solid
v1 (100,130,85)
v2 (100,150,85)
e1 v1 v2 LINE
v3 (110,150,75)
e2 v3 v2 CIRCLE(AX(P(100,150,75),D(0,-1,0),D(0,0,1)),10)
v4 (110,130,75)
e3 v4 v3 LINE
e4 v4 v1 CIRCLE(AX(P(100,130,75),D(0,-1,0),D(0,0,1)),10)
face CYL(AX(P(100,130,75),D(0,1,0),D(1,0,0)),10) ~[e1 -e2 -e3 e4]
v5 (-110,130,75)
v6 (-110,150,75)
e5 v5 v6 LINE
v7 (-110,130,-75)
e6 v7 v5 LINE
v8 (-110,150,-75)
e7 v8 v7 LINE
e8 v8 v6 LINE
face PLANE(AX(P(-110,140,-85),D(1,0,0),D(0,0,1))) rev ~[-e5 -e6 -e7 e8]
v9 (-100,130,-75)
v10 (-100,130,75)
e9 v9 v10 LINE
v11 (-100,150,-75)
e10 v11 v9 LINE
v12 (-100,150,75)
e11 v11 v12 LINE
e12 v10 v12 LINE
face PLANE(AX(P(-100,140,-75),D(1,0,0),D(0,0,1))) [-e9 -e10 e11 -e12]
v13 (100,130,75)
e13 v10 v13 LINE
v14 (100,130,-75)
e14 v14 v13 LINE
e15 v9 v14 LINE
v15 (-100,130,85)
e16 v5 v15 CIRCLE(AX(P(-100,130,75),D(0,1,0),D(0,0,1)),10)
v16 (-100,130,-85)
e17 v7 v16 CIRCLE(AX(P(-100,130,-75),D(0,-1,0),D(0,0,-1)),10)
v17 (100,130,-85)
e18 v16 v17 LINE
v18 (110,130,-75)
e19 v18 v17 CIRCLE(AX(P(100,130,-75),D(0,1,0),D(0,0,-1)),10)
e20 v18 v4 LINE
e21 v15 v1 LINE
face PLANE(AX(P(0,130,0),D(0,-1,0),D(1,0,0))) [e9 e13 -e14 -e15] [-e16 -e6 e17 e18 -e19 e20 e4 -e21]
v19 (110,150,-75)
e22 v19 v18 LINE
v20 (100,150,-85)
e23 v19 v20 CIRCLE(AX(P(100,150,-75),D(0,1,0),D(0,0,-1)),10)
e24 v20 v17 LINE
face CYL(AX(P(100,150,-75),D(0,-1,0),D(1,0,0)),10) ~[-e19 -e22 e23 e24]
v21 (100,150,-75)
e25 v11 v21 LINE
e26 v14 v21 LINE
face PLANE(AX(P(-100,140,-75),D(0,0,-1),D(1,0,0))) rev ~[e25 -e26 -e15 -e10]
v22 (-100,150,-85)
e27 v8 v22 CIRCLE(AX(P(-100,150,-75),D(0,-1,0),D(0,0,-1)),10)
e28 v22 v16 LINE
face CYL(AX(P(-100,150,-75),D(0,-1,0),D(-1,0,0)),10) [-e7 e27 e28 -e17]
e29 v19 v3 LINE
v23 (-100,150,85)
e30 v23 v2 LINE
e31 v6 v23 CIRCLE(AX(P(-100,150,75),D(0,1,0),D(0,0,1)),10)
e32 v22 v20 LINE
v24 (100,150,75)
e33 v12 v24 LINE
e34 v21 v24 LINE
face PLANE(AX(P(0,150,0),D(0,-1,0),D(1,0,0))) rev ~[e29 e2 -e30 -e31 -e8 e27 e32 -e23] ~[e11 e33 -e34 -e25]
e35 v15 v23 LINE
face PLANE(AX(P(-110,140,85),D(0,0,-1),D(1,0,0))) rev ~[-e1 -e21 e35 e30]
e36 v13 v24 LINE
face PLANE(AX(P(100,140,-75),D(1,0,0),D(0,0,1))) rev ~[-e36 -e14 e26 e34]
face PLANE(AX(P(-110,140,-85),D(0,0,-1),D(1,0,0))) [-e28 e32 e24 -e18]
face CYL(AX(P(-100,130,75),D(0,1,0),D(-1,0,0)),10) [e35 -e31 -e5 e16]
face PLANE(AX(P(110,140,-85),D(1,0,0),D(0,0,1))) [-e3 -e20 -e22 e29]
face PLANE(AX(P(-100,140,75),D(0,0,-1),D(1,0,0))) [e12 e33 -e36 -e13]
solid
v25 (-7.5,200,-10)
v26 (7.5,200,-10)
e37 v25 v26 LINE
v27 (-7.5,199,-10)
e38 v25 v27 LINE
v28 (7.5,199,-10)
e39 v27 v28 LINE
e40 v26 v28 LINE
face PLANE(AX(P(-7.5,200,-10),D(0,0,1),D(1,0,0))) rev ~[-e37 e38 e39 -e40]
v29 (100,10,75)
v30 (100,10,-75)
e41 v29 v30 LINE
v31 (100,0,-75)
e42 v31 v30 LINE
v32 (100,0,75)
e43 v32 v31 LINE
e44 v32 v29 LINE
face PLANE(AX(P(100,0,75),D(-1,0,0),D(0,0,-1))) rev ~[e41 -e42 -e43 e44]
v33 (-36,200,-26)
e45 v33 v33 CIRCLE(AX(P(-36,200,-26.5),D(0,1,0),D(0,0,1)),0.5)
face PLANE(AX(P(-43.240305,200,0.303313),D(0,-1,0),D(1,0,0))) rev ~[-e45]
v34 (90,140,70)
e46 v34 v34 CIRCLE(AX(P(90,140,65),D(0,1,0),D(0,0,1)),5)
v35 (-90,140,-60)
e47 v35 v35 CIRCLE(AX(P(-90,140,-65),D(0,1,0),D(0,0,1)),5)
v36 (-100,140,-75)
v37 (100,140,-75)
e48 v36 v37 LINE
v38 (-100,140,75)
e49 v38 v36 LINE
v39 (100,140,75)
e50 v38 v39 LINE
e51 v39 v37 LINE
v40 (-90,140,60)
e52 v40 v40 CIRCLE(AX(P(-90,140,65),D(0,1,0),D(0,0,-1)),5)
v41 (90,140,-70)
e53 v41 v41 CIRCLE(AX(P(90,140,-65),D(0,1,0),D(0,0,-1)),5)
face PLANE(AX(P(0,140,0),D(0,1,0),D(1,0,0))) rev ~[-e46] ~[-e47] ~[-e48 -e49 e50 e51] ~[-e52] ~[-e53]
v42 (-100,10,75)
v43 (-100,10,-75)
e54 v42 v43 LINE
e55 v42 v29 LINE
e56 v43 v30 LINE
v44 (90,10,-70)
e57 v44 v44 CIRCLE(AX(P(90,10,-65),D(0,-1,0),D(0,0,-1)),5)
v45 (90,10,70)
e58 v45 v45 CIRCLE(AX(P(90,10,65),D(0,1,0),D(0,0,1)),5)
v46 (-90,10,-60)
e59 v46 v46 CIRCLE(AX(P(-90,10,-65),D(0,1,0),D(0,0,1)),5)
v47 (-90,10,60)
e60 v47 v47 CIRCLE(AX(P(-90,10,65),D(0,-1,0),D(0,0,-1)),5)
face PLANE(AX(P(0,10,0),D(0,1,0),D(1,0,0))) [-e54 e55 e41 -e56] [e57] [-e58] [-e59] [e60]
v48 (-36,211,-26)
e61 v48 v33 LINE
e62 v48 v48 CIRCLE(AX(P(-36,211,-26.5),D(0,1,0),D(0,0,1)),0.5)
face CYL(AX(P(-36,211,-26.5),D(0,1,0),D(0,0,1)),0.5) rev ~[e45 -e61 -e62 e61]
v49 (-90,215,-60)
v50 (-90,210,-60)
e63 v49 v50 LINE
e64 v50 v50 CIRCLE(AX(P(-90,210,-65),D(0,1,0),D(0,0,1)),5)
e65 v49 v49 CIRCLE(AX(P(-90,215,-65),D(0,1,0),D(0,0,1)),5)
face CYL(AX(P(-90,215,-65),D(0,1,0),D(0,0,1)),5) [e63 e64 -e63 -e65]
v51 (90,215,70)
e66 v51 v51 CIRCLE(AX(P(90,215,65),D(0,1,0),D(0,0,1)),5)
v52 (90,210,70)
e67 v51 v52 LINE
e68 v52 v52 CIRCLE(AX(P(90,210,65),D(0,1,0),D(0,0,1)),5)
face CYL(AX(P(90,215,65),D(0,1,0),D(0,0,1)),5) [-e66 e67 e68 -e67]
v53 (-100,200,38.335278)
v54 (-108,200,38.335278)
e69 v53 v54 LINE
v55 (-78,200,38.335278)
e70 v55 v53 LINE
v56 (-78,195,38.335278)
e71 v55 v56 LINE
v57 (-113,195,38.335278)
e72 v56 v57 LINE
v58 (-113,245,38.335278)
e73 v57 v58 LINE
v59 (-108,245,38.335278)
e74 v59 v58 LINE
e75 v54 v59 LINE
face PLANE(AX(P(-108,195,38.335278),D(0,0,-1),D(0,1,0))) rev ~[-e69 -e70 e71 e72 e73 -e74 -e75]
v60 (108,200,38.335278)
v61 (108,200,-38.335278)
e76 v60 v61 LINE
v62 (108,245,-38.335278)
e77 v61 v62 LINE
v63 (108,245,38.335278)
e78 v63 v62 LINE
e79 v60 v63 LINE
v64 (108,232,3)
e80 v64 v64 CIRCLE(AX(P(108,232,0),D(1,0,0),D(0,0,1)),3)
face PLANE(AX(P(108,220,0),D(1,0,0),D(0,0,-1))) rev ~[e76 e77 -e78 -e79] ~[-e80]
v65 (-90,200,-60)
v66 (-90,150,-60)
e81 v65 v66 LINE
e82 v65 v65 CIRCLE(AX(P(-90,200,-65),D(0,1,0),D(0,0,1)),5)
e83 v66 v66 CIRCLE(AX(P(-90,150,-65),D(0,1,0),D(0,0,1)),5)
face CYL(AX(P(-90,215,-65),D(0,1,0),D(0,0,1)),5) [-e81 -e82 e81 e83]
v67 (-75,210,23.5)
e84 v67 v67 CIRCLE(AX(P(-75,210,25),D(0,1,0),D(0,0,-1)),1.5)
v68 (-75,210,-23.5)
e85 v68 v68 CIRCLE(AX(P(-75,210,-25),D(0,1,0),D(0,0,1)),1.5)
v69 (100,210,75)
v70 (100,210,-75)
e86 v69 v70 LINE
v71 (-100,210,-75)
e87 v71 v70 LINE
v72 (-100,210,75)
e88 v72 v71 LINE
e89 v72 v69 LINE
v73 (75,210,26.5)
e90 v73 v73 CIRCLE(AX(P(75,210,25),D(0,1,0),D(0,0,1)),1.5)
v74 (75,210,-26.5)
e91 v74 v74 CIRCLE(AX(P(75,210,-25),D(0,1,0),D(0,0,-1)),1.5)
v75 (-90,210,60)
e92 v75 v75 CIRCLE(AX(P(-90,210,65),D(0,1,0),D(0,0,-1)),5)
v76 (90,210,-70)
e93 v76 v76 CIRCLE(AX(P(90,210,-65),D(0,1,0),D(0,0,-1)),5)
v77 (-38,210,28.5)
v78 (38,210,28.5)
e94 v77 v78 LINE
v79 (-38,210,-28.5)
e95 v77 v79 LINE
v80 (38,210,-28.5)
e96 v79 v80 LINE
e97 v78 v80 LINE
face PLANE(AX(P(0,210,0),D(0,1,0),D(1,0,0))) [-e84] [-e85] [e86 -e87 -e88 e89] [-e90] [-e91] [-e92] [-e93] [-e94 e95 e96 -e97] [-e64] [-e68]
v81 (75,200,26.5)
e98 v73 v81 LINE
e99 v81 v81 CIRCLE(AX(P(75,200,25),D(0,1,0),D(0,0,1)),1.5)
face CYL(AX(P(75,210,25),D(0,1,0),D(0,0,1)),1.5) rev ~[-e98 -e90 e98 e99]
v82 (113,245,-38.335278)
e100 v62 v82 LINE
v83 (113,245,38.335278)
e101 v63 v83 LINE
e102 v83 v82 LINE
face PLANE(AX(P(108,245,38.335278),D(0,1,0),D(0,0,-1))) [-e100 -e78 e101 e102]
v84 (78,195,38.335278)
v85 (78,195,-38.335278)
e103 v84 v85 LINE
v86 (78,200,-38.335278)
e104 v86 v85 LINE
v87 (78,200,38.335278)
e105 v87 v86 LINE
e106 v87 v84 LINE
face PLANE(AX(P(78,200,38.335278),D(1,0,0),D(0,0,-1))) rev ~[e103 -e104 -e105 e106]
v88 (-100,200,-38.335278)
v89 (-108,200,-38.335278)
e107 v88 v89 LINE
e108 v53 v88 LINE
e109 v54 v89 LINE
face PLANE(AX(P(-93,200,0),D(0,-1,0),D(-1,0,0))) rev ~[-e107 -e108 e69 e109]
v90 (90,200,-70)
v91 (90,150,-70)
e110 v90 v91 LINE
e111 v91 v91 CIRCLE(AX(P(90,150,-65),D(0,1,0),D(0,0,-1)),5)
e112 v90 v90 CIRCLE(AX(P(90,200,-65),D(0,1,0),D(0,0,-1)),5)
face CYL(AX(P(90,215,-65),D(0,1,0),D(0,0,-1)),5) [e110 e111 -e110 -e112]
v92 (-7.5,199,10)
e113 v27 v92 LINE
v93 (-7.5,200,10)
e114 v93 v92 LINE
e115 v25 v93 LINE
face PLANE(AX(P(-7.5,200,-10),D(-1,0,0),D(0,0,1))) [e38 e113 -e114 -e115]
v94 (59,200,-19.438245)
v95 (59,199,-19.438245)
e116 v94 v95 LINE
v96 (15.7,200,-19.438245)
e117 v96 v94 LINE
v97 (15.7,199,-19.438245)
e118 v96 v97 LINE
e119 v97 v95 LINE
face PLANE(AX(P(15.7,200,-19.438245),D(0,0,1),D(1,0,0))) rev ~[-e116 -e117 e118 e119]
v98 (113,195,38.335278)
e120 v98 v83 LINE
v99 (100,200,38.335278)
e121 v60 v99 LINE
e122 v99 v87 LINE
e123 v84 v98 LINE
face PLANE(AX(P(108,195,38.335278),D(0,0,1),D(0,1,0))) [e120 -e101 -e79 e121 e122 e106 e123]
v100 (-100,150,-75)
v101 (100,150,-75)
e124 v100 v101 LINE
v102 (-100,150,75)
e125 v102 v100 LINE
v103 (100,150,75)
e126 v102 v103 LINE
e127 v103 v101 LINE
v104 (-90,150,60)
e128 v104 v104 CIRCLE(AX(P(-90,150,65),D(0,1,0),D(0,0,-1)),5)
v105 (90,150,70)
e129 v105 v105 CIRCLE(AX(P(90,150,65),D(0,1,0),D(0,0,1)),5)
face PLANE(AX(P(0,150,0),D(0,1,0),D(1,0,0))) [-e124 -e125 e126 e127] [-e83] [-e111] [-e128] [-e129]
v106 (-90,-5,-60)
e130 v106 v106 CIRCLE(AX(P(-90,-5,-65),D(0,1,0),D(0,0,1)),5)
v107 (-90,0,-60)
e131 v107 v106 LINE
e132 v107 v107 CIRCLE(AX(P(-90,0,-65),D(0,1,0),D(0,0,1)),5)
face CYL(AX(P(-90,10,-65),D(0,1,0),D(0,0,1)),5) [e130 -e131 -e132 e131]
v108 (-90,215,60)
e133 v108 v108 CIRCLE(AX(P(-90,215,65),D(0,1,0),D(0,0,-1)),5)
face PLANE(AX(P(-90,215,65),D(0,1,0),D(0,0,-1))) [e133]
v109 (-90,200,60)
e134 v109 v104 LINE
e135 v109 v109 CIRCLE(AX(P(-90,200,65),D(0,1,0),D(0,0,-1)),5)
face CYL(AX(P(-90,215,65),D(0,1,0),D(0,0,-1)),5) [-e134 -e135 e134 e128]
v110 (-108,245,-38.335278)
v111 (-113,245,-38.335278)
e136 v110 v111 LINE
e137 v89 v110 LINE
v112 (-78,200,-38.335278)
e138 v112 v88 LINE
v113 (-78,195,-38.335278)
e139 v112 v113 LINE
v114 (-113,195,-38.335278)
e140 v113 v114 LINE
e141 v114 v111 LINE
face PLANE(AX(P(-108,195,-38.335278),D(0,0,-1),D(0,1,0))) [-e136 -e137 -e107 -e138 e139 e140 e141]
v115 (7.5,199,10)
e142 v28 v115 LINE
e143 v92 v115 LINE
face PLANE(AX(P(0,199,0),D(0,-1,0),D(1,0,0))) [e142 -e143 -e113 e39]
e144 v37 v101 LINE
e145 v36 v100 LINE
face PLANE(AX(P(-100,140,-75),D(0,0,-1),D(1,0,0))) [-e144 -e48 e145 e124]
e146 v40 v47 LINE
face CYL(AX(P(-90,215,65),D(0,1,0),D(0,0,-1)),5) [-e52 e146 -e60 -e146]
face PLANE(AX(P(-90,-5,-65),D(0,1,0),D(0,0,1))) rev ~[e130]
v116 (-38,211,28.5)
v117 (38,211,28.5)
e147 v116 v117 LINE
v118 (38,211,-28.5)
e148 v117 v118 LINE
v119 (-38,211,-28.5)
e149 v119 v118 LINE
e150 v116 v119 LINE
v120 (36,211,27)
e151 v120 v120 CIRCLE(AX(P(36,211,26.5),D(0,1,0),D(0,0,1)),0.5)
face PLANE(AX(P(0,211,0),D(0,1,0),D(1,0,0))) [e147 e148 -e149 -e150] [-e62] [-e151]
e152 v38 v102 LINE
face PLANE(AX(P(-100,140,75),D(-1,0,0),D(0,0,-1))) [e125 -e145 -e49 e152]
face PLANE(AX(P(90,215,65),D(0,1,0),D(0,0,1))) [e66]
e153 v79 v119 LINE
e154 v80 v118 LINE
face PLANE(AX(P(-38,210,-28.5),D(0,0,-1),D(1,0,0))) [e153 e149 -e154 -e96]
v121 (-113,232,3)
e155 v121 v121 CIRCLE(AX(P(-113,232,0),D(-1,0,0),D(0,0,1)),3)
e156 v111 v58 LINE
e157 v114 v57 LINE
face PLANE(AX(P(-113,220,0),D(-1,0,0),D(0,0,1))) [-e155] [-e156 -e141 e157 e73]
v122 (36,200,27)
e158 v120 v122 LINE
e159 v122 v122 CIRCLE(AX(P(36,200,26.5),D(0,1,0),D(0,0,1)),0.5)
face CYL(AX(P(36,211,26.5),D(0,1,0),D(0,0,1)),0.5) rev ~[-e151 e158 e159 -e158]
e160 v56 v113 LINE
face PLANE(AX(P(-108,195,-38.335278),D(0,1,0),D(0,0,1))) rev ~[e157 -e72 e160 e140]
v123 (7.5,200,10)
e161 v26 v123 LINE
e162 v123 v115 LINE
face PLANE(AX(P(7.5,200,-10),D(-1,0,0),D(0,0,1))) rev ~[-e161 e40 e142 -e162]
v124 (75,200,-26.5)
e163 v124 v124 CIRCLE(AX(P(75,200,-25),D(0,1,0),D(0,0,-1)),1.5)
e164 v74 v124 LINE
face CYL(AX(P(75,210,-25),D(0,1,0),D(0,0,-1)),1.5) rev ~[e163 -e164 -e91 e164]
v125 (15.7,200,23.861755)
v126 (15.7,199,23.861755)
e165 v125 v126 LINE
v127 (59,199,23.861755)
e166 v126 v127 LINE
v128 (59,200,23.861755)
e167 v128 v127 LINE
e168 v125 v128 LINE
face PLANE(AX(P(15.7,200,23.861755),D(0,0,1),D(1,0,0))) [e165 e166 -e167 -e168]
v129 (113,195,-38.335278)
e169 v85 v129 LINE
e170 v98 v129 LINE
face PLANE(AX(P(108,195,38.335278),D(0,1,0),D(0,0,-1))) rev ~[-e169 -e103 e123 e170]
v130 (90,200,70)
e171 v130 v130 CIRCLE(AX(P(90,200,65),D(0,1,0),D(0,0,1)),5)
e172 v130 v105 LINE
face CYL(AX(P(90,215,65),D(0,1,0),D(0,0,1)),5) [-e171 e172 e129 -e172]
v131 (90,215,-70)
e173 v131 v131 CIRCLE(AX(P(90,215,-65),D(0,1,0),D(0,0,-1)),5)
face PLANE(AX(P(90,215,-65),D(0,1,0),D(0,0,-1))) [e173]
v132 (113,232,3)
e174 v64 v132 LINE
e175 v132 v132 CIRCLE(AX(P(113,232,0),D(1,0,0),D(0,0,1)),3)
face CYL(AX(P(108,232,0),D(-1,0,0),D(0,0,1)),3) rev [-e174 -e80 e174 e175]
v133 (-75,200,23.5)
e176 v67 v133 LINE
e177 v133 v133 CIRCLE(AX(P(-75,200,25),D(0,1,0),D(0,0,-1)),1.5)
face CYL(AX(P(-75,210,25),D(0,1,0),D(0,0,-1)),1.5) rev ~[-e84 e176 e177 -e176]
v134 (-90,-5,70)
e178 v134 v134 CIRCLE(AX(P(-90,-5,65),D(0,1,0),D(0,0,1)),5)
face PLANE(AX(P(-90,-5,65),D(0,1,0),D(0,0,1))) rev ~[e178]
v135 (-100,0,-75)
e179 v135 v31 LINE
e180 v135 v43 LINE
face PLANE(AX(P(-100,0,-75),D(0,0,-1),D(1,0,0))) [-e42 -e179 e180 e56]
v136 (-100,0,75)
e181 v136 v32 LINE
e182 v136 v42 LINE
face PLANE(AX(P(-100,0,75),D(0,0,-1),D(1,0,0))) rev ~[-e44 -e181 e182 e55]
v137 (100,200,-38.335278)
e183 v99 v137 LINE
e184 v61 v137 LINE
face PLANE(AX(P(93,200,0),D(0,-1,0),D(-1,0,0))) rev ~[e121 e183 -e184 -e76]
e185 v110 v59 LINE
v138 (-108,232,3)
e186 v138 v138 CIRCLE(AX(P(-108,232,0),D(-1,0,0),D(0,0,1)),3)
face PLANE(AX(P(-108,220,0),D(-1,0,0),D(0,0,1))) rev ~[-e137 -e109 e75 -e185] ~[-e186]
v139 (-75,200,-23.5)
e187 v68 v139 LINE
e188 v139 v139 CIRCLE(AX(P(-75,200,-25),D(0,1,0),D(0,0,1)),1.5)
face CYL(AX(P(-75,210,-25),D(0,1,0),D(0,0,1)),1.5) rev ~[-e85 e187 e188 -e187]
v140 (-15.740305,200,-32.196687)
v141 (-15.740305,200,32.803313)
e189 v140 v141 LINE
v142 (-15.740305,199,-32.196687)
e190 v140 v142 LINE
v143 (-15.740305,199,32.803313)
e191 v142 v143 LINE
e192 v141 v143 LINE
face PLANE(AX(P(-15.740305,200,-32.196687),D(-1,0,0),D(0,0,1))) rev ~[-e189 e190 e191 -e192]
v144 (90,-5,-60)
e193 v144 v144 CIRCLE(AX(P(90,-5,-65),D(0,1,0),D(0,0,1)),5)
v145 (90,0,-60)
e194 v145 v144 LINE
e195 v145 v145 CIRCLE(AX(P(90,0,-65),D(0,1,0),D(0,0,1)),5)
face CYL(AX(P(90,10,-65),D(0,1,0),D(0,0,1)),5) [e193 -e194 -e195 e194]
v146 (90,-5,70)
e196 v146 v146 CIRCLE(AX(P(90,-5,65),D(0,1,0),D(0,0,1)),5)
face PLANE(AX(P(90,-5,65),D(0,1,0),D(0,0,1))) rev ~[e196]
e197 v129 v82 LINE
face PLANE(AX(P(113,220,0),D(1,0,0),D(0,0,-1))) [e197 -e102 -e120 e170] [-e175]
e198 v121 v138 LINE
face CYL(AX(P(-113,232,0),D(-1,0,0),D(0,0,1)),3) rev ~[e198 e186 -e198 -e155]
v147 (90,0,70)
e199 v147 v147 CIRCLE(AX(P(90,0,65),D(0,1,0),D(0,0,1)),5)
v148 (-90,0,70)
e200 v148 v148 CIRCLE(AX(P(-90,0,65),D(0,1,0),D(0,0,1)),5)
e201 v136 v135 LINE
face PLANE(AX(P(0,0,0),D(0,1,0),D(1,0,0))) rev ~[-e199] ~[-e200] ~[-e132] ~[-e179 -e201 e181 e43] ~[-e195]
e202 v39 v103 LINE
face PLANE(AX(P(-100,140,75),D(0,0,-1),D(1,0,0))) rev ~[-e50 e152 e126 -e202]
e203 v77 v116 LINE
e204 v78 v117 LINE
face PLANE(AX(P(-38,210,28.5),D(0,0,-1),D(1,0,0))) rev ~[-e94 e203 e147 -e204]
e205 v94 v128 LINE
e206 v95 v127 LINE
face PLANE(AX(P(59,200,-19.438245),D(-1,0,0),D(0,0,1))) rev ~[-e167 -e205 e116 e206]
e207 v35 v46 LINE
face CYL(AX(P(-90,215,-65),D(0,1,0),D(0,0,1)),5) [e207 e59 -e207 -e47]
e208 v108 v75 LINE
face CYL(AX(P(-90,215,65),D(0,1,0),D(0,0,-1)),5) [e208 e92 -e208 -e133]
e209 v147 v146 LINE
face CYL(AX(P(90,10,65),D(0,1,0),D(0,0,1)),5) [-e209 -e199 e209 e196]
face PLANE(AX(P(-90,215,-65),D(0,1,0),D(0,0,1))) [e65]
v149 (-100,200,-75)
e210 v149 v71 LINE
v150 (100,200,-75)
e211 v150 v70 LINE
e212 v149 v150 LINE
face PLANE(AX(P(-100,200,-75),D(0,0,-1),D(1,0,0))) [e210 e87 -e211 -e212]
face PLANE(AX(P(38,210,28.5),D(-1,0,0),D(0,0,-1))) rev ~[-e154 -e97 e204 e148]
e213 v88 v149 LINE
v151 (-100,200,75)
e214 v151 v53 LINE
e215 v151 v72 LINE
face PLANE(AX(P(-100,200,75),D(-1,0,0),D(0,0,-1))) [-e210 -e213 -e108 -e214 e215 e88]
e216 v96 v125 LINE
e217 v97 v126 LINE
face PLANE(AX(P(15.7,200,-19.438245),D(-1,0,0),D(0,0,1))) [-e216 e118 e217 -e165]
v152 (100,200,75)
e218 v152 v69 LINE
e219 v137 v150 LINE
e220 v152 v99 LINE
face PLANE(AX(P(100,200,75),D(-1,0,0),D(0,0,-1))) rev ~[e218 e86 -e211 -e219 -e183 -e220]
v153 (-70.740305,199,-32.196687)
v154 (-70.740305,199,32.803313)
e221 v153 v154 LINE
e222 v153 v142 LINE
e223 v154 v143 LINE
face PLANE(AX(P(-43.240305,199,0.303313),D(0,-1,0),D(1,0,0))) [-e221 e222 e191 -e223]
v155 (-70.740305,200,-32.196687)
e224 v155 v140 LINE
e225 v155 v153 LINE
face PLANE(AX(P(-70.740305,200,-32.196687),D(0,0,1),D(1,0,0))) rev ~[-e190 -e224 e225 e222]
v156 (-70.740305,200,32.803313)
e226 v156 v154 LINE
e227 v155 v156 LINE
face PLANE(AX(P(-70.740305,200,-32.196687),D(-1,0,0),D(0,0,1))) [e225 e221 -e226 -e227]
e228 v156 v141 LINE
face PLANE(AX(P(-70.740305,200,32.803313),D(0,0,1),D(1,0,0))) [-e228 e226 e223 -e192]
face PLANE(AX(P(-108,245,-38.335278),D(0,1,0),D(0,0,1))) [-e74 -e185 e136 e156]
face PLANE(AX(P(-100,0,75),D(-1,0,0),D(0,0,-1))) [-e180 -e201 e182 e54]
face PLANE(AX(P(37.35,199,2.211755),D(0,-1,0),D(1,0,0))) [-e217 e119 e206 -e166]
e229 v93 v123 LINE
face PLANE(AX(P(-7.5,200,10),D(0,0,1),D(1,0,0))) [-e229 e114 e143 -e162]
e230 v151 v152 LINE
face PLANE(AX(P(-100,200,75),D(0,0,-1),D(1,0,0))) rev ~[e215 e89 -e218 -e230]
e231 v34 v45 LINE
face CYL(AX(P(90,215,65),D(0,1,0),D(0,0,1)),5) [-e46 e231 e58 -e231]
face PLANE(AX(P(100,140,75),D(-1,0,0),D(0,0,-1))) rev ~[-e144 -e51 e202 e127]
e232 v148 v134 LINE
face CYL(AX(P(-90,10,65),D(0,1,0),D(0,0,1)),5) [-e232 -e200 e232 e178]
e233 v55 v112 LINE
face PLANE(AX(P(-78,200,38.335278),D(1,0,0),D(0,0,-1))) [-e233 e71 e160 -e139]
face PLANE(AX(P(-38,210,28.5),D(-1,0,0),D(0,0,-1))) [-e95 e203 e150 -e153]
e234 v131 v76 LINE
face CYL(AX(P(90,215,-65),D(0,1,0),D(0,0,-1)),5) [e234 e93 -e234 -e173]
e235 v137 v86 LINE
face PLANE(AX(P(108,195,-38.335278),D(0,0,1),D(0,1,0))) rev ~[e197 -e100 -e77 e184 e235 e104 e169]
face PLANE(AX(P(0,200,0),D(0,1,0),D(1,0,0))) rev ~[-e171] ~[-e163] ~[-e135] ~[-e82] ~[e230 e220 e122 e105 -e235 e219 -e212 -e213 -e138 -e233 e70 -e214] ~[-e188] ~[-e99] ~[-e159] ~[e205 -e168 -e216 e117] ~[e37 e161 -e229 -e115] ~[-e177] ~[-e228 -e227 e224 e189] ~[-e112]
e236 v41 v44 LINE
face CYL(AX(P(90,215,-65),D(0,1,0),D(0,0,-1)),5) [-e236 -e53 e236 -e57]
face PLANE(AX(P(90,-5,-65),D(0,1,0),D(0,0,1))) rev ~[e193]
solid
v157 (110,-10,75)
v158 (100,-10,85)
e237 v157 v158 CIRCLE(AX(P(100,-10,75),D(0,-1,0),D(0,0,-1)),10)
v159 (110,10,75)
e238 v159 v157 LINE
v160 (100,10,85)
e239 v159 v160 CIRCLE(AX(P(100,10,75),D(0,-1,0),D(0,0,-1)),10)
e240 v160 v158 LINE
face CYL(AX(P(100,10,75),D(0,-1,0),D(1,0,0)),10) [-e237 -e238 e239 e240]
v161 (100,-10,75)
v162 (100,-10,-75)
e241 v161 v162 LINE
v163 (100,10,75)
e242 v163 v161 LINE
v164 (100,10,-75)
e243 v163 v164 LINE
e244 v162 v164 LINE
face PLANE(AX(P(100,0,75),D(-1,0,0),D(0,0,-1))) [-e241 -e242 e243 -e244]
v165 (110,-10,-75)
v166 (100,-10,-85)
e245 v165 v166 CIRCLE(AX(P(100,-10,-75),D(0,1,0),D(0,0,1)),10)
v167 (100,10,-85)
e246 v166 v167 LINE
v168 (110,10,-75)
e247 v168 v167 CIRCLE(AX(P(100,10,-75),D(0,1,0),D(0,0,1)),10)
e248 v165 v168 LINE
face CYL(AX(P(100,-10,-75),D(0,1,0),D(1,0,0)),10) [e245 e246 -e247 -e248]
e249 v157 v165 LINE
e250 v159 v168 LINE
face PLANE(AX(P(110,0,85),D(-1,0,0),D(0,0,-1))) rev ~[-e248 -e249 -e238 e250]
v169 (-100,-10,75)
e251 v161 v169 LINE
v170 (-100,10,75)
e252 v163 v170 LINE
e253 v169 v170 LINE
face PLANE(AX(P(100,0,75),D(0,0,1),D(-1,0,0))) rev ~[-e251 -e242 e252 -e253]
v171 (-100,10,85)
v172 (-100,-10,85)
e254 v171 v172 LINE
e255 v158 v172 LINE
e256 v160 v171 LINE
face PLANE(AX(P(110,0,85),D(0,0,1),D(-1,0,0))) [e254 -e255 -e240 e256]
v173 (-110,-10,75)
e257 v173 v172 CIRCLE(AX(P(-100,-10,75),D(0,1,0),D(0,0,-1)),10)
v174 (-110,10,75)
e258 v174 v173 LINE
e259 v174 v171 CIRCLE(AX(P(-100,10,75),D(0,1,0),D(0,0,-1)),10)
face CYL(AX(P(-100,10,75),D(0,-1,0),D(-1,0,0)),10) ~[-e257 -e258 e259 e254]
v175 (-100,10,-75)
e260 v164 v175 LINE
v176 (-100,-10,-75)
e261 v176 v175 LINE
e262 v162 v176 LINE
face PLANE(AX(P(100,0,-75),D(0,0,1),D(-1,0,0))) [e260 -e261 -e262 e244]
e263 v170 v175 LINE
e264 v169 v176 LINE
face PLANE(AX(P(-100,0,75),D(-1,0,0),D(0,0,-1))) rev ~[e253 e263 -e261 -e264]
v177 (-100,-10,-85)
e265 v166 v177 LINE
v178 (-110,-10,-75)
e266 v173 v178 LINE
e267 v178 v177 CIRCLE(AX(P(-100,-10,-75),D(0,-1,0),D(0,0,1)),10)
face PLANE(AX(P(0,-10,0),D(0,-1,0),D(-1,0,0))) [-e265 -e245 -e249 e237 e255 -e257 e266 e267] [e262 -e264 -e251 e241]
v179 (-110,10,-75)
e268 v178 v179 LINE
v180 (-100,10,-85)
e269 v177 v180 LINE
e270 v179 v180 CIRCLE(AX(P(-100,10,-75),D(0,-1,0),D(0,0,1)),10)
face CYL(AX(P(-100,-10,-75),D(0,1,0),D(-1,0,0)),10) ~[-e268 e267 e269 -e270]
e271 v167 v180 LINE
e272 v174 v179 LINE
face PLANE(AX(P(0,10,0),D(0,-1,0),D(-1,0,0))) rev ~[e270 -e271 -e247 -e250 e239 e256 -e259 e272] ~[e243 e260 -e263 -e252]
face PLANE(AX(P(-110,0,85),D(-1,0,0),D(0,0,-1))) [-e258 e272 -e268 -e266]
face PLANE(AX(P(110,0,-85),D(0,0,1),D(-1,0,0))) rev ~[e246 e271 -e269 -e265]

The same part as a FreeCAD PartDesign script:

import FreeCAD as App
import Part
import Sketcher
Q = App.Units.Quantity


def edges_at(feature, points):
    """Names of the edges that pass closest to the given points."""
    edges = feature.Shape.Edges
    near = lambda p: min(range(len(edges)), key=lambda i: edges[i].distToShape(Part.Vertex(*p))[0])
    return sorted({f"Edge{near(p) + 1}" for p in points})


def add_polygon(sketch, points):
    """Adds a closed chain of lines whose ends are joined by coincident constraints."""
    first, n = sketch.GeometryCount, len(points)
    for a, b in zip(points, points[1:] + points[:1]):
        sketch.addGeometry(Part.LineSegment(App.Vector(*a, 0), App.Vector(*b, 0)), False)
    for i in range(n):
        sketch.addConstraint(Sketcher.Constraint("Coincident", first + i, 2, first + (i + 1) % n, 1))

doc = App.newDocument("Part")
params = doc.addObject("Spreadsheet::Sheet", "Params")
for row, (alias, value) in enumerate([
    ("sketch1_width", "200 mm"),
    ("sketch1_height", "150 mm"),
    ("pad1_length", "10 mm"),
    ("sketch2_diameter", "10 mm"),
    ("pocket1_length", "10 mm"),
    ("sketch3_diameter", "10 mm"),
    ("sketch3_width", "200 mm"),
    ("sketch3_height", "150 mm"),
    ("pad2_length", "10 mm"),
    ("sketch4_diameter", "10 mm"),
    ("sketch4_width", "200 mm"),
    ("sketch4_height", "150 mm"),
    ("pad3_length", "10 mm"),
    ("sketch5_diameter", "10 mm"),
    ("pad4_length", "205 mm"),
    ("sketch6_diameter", "10 mm"),
    ("pad5_length", "15 mm"),
    ("sketch7_diameter", "3 mm"),
    ("pocket2_length", "10 mm"),
    ("sketch8_width", "76 mm"),
    ("sketch8_height", "57 mm"),
    ("pad6_length", "1 mm"),
    ("sketch9_diameter", "1 mm"),
    ("pocket3_length", "30 mm"),
    ("sketch10_width", "15 mm"),
    ("sketch10_width2", "55 mm"),
    ("sketch10_height", "20 mm"),
    ("sketch10_height2", "65 mm"),
    ("sketch10_width3", "43.3 mm"),
    ("pad7_length", "1 mm"),
    ("sketch11_width", "30 mm"),
    ("pad8_length", "5 mm"),
    ("sketch12_width", "50 mm"),
    ("pad9_length", "5 mm"),
    ("sketch13_diameter", "6 mm"),
    ("pocket4_length", "5 mm"),
    ("sketch14_width", "50 mm"),
    ("pad10_length", "5 mm"),
    ("sketch15_diameter", "6 mm"),
    ("pocket5_length", "5 mm"),
    ("sketch16_width", "220 mm"),
    ("sketch16_width2", "200 mm"),
    ("sketch16_height", "170 mm"),
    ("sketch16_height2", "150 mm"),
    ("pad11_length", "20 mm"),
    ("fillet_radius", "10 mm"),
    ("sketch17_width", "220 mm"),
    ("sketch17_width2", "200 mm"),
    ("sketch17_height", "170 mm"),
    ("sketch17_height2", "150 mm"),
    ("pad12_length", "20 mm"),
    ("fillet2_radius", "10 mm"),
], start=1):
    params.set(f"A{row}", alias)
    params.set(f"B{row}", "=" + value)
    params.setAlias(f"B{row}", alias)

body = doc.addObject("PartDesign::Body", "Body")

sketch1 = body.newObject("Sketcher::SketchObject", "Sketch")
sketch1.AttachmentSupport = (doc.getObject("XZ_Plane"), [""])
sketch1.MapMode = "FlatFace"
add_polygon(sketch1, [(-100, -75), (-100, 75), (100, 75), (100, -75)])
sketch1.addConstraint([
    Sketcher.Constraint("Vertical", 0),
    Sketcher.Constraint("Horizontal", 1),
    Sketcher.Constraint("Vertical", 2),
    Sketcher.Constraint("Horizontal", 3),
    Sketcher.Constraint("Symmetric", 0, 2, 2, 2, -1, 1),
    Sketcher.Constraint("DistanceX", 1, 1, 1, 2, Q("200 mm")),
    Sketcher.Constraint("DistanceY", 0, 1, 0, 2, Q("150 mm")),
])
sketch1.setExpression("Constraints[9]", "Params.sketch1_width")
sketch1.setExpression("Constraints[10]", "Params.sketch1_height")
pad1 = body.newObject("PartDesign::Pad", "Pad")
pad1.Profile = sketch1
pad1.setExpression("Length", "Params.pad1_length")
pad1.Reversed = True

sketch2 = body.newObject("Sketcher::SketchObject", "Sketch001")
sketch2.AttachmentSupport = (doc.getObject("XZ_Plane"), [""])
sketch2.MapMode = "FlatFace"
sketch2.AttachmentOffset = App.Placement(App.Vector(0, 0, -10), App.Rotation())
sketch2.addGeometry([
    Part.Circle(App.Vector(-90, -65, 0), App.Vector(0, 0, 1), 5),
    Part.Circle(App.Vector(90, -65, 0), App.Vector(0, 0, 1), 5),
    Part.Circle(App.Vector(90, 65, 0), App.Vector(0, 0, 1), 5),
    Part.Circle(App.Vector(-90, 65, 0), App.Vector(0, 0, 1), 5),
], False)
sketch2.addConstraint([
    Sketcher.Constraint("Equal", 0, 1),
    Sketcher.Constraint("Equal", 1, 2),
    Sketcher.Constraint("Equal", 2, 3),
    Sketcher.Constraint("Symmetric", 0, 3, 2, 3, -1, 1),
    Sketcher.Constraint("Symmetric", 1, 3, 3, 3, -1, 1),
    Sketcher.Constraint("Symmetric", 0, 3, 1, 3, -2),
    Sketcher.Constraint("Diameter", 0, Q("10 mm")),
    Sketcher.Constraint("DistanceX", 0, 3, -1, 1, Q("90 mm")),
    Sketcher.Constraint("DistanceY", 0, 3, -1, 1, Q("65 mm")),
])
sketch2.setExpression("Constraints[6]", "Params.sketch2_diameter")
pocket1 = body.newObject("PartDesign::Pocket", "Pocket")
pocket1.Profile = sketch2
pocket1.setExpression("Length", "Params.pocket1_length")
pocket1.Reversed = True
body2 = doc.addObject("PartDesign::Body", "Body001")

sketch3 = body2.newObject("Sketcher::SketchObject", "Sketch002")
sketch3.AttachmentSupport = (doc.getObject("XZ_Plane001"), [""])
sketch3.MapMode = "FlatFace"
sketch3.AttachmentOffset = App.Placement(App.Vector(0, 0, -140), App.Rotation())
add_polygon(sketch3, [(-100, -75), (-100, 75), (100, 75), (100, -75)])
sketch3.addGeometry(Part.Circle(App.Vector(-90, 65, 0), App.Vector(0, 0, 1), 5), False)
sketch3.addGeometry(Part.Circle(App.Vector(90, 65, 0), App.Vector(0, 0, 1), 5), False)
sketch3.addGeometry(Part.Circle(App.Vector(-90, -65, 0), App.Vector(0, 0, 1), 5), False)
sketch3.addGeometry(Part.Circle(App.Vector(90, -65, 0), App.Vector(0, 0, 1), 5), False)
sketch3.addConstraint([
    Sketcher.Constraint("Vertical", 0),
    Sketcher.Constraint("Horizontal", 1),
    Sketcher.Constraint("Vertical", 2),
    Sketcher.Constraint("Horizontal", 3),
    Sketcher.Constraint("Equal", 4, 5),
    Sketcher.Constraint("Equal", 5, 6),
    Sketcher.Constraint("Equal", 6, 7),
    Sketcher.Constraint("Symmetric", 5, 3, 6, 3, -1, 1),
    Sketcher.Constraint("Symmetric", 4, 3, 7, 3, -1, 1),
    Sketcher.Constraint("Symmetric", 0, 2, 2, 2, -1, 1),
    Sketcher.Constraint("Symmetric", 4, 3, 5, 3, -2),
    Sketcher.Constraint("Diameter", 4, Q("10 mm")),
    Sketcher.Constraint("DistanceX", 1, 1, 1, 2, Q("200 mm")),
    Sketcher.Constraint("DistanceY", 0, 1, 0, 2, Q("150 mm")),
    Sketcher.Constraint("DistanceX", 4, 3, -1, 1, Q("90 mm")),
    Sketcher.Constraint("DistanceY", -1, 1, 4, 3, Q("65 mm")),
])
sketch3.setExpression("Constraints[15]", "Params.sketch3_diameter")
sketch3.setExpression("Constraints[16]", "Params.sketch3_width")
sketch3.setExpression("Constraints[17]", "Params.sketch3_height")
pad2 = body2.newObject("PartDesign::Pad", "Pad001")
pad2.Profile = sketch3
pad2.setExpression("Length", "Params.pad2_length")
pad2.Reversed = True
body3 = doc.addObject("PartDesign::Body", "Body002")

sketch4 = body3.newObject("Sketcher::SketchObject", "Sketch003")
sketch4.AttachmentSupport = (doc.getObject("XZ_Plane002"), [""])
sketch4.MapMode = "FlatFace"
sketch4.AttachmentOffset = App.Placement(App.Vector(0, 0, -200), App.Rotation())
add_polygon(sketch4, [(-100, -75), (-100, 75), (100, 75), (100, -75)])
sketch4.addGeometry(Part.Circle(App.Vector(-90, 65, 0), App.Vector(0, 0, 1), 5), False)
sketch4.addGeometry(Part.Circle(App.Vector(90, 65, 0), App.Vector(0, 0, 1), 5), False)
sketch4.addGeometry(Part.Circle(App.Vector(-90, -65, 0), App.Vector(0, 0, 1), 5), False)
sketch4.addGeometry(Part.Circle(App.Vector(90, -65, 0), App.Vector(0, 0, 1), 5), False)
sketch4.addConstraint([
    Sketcher.Constraint("Vertical", 0),
    Sketcher.Constraint("Horizontal", 1),
    Sketcher.Constraint("Vertical", 2),
    Sketcher.Constraint("Horizontal", 3),
    Sketcher.Constraint("Equal", 4, 5),
    Sketcher.Constraint("Equal", 5, 6),
    Sketcher.Constraint("Equal", 6, 7),
    Sketcher.Constraint("Symmetric", 5, 3, 6, 3, -1, 1),
    Sketcher.Constraint("Symmetric", 4, 3, 7, 3, -1, 1),
    Sketcher.Constraint("Symmetric", 0, 2, 2, 2, -1, 1),
    Sketcher.Constraint("Symmetric", 4, 3, 5, 3, -2),
    Sketcher.Constraint("Diameter", 4, Q("10 mm")),
    Sketcher.Constraint("DistanceX", 1, 1, 1, 2, Q("200 mm")),
    Sketcher.Constraint("DistanceY", 0, 1, 0, 2, Q("150 mm")),
    Sketcher.Constraint("DistanceX", 4, 3, -1, 1, Q("90 mm")),
    Sketcher.Constraint("DistanceY", -1, 1, 4, 3, Q("65 mm")),
])
sketch4.setExpression("Constraints[15]", "Params.sketch4_diameter")
sketch4.setExpression("Constraints[16]", "Params.sketch4_width")
sketch4.setExpression("Constraints[17]", "Params.sketch4_height")
pad3 = body3.newObject("PartDesign::Pad", "Pad002")
pad3.Profile = sketch4
pad3.setExpression("Length", "Params.pad3_length")
pad3.Reversed = True
body2.AllowCompound = True
doc.recompute()

boolean = body2.newObject("PartDesign::Boolean", "Boolean")
boolean.Type = "Fuse"
boolean.addObjects([body3])

sketch5 = body2.newObject("Sketcher::SketchObject", "Sketch004")
sketch5.AttachmentSupport = (doc.getObject("XZ_Plane001"), [""])
sketch5.MapMode = "FlatFace"
sketch5.AttachmentOffset = App.Placement(App.Vector(0, 0, -215), App.Rotation())
sketch5.addGeometry([
    Part.Circle(App.Vector(-90, 65, 0), App.Vector(0, 0, 1), 5),
    Part.Circle(App.Vector(-90, -65, 0), App.Vector(0, 0, 1), 5),
    Part.Circle(App.Vector(90, -65, 0), App.Vector(0, 0, 1), 5),
    Part.Circle(App.Vector(90, 65, 0), App.Vector(0, 0, 1), 5),
], False)
sketch5.addConstraint([
    Sketcher.Constraint("Equal", 0, 1),
    Sketcher.Constraint("Equal", 1, 2),
    Sketcher.Constraint("Equal", 2, 3),
    Sketcher.Constraint("Symmetric", 0, 3, 2, 3, -1, 1),
    Sketcher.Constraint("Symmetric", 1, 3, 3, 3, -1, 1),
    Sketcher.Constraint("Symmetric", 1, 3, 2, 3, -2),
    Sketcher.Constraint("Diameter", 0, Q("10 mm")),
    Sketcher.Constraint("DistanceX", 0, 3, -1, 1, Q("90 mm")),
    Sketcher.Constraint("DistanceY", -1, 1, 0, 3, Q("65 mm")),
])
sketch5.setExpression("Constraints[6]", "Params.sketch5_diameter")
pad4 = body2.newObject("PartDesign::Pad", "Pad003")
pad4.Profile = sketch5
pad4.setExpression("Length", "Params.pad4_length")
body.AllowCompound = True
doc.recompute()

boolean2 = body.newObject("PartDesign::Boolean", "Boolean001")
boolean2.Type = "Fuse"
boolean2.addObjects([body2])

sketch6 = body.newObject("Sketcher::SketchObject", "Sketch005")
sketch6.AttachmentSupport = (doc.getObject("XZ_Plane"), [""])
sketch6.MapMode = "FlatFace"
sketch6.AttachmentOffset = App.Placement(App.Vector(0, 0, -10), App.Rotation())
sketch6.addGeometry([
    Part.Circle(App.Vector(-90, -65, 0), App.Vector(0, 0, 1), 5),
    Part.Circle(App.Vector(-90, 65, 0), App.Vector(0, 0, 1), 5),
    Part.Circle(App.Vector(90, 65, 0), App.Vector(0, 0, 1), 5),
    Part.Circle(App.Vector(90, -65, 0), App.Vector(0, 0, 1), 5),
], False)
sketch6.addConstraint([
    Sketcher.Constraint("Equal", 0, 1),
    Sketcher.Constraint("Equal", 1, 2),
    Sketcher.Constraint("Equal", 2, 3),
    Sketcher.Constraint("Symmetric", 0, 3, 2, 3, -1, 1),
    Sketcher.Constraint("Symmetric", 1, 3, 3, 3, -1, 1),
    Sketcher.Constraint("Symmetric", 1, 3, 2, 3, -2),
    Sketcher.Constraint("Diameter", 0, Q("10 mm")),
    Sketcher.Constraint("DistanceX", 0, 3, -1, 1, Q("90 mm")),
    Sketcher.Constraint("DistanceY", 0, 3, -1, 1, Q("65 mm")),
])
sketch6.setExpression("Constraints[6]", "Params.sketch6_diameter")
pad5 = body.newObject("PartDesign::Pad", "Pad004")
pad5.Profile = sketch6
pad5.setExpression("Length", "Params.pad5_length")

sketch7 = body.newObject("Sketcher::SketchObject", "Sketch006")
sketch7.AttachmentSupport = (doc.getObject("XZ_Plane"), [""])
sketch7.MapMode = "FlatFace"
sketch7.AttachmentOffset = App.Placement(App.Vector(0, 0, -210), App.Rotation())
sketch7.addGeometry([
    Part.Circle(App.Vector(-75, -25, 0), App.Vector(0, 0, 1), 1.5),
    Part.Circle(App.Vector(-75, 25, 0), App.Vector(0, 0, 1), 1.5),
    Part.Circle(App.Vector(75, 25, 0), App.Vector(0, 0, 1), 1.5),
    Part.Circle(App.Vector(75, -25, 0), App.Vector(0, 0, 1), 1.5),
], False)
sketch7.addConstraint([
    Sketcher.Constraint("Equal", 0, 1),
    Sketcher.Constraint("Equal", 1, 2),
    Sketcher.Constraint("Equal", 2, 3),
    Sketcher.Constraint("Symmetric", 0, 3, 2, 3, -1, 1),
    Sketcher.Constraint("Symmetric", 1, 3, 3, 3, -1, 1),
    Sketcher.Constraint("Symmetric", 1, 3, 2, 3, -2),
    Sketcher.Constraint("Diameter", 0, Q("3 mm")),
    Sketcher.Constraint("DistanceX", 0, 3, -1, 1, Q("75 mm")),
    Sketcher.Constraint("DistanceY", 0, 3, -1, 1, Q("25 mm")),
])
sketch7.setExpression("Constraints[6]", "Params.sketch7_diameter")
pocket2 = body.newObject("PartDesign::Pocket", "Pocket001")
pocket2.Profile = sketch7
pocket2.setExpression("Length", "Params.pocket2_length")
pocket2.Reversed = True

sketch8 = body.newObject("Sketcher::SketchObject", "Sketch007")
sketch8.AttachmentSupport = (doc.getObject("XZ_Plane"), [""])
sketch8.MapMode = "FlatFace"
sketch8.AttachmentOffset = App.Placement(App.Vector(0, 0, -210), App.Rotation())
add_polygon(sketch8, [(-38, -28.5), (-38, 28.5), (38, 28.5), (38, -28.5)])
sketch8.addConstraint([
    Sketcher.Constraint("Vertical", 0),
    Sketcher.Constraint("Horizontal", 1),
    Sketcher.Constraint("Vertical", 2),
    Sketcher.Constraint("Horizontal", 3),
    Sketcher.Constraint("Symmetric", 0, 2, 2, 2, -1, 1),
    Sketcher.Constraint("DistanceX", 1, 1, 1, 2, Q("76 mm")),
    Sketcher.Constraint("DistanceY", 0, 1, 0, 2, Q("57 mm")),
])
sketch8.setExpression("Constraints[9]", "Params.sketch8_width")
sketch8.setExpression("Constraints[10]", "Params.sketch8_height")
pad6 = body.newObject("PartDesign::Pad", "Pad005")
pad6.Profile = sketch8
pad6.setExpression("Length", "Params.pad6_length")
pad6.Reversed = True

sketch9 = body.newObject("Sketcher::SketchObject", "Sketch008")
sketch9.AttachmentSupport = (doc.getObject("XZ_Plane"), [""])
sketch9.MapMode = "FlatFace"
sketch9.AttachmentOffset = App.Placement(App.Vector(0, 0, -211), App.Rotation())
sketch9.addGeometry([
    Part.Circle(App.Vector(-36, -26.5, 0), App.Vector(0, 0, 1), 0.5),
    Part.Circle(App.Vector(36, 26.5, 0), App.Vector(0, 0, 1), 0.5),
], False)
sketch9.addConstraint([
    Sketcher.Constraint("Equal", 0, 1),
    Sketcher.Constraint("Symmetric", 0, 3, 1, 3, -1, 1),
    Sketcher.Constraint("Diameter", 0, Q("1 mm")),
    Sketcher.Constraint("DistanceX", 0, 3, -1, 1, Q("36 mm")),
    Sketcher.Constraint("DistanceY", 0, 3, 1, 3, Q("53 mm")),
])
sketch9.setExpression("Constraints[2]", "Params.sketch9_diameter")
pocket3 = body.newObject("PartDesign::Pocket", "Pocket002")
pocket3.Profile = sketch9
pocket3.setExpression("Length", "Params.pocket3_length")
pocket3.Reversed = True

sketch10 = body.newObject("Sketcher::SketchObject", "Sketch009")
sketch10.AttachmentSupport = (doc.getObject("XZ_Plane"), [""])
sketch10.MapMode = "FlatFace"
sketch10.AttachmentOffset = App.Placement(App.Vector(0, 0, -200), App.Rotation())
add_polygon(sketch10, [(-7.5, 10), (-7.5, -10), (7.5, -10), (7.5, 10)])
add_polygon(sketch10, [(-70.740305, 32.803313), (-70.740305, -32.196687), (-15.740305, -32.196687), (-15.740305, 32.803313)])
add_polygon(sketch10, [(15.7, 23.861755), (15.7, -19.438245), (59, -19.438245), (59, 23.861755)])
sketch10.addConstraint([
    Sketcher.Constraint("Vertical", 0),
    Sketcher.Constraint("Horizontal", 1),
    Sketcher.Constraint("Vertical", 2),
    Sketcher.Constraint("Horizontal", 3),
    Sketcher.Constraint("Vertical", 4),
    Sketcher.Constraint("Horizontal", 5),
    Sketcher.Constraint("Vertical", 6),
    Sketcher.Constraint("Horizontal", 7),
    Sketcher.Constraint("Vertical", 8),
    Sketcher.Constraint("Horizontal", 9),
    Sketcher.Constraint("Vertical", 10),
    Sketcher.Constraint("Horizontal", 11),
    Sketcher.Constraint("Symmetric", 0, 2, 2, 2, -1, 1),
    Sketcher.Constraint("Equal", 11, 8),
    Sketcher.Constraint("DistanceX", 1, 1, 1, 2, Q("15 mm")),
    Sketcher.Constraint("DistanceX", 5, 1, 5, 2, Q("55 mm")),
    Sketcher.Constraint("DistanceY", 0, 2, 0, 1, Q("20 mm")),
    Sketcher.Constraint("DistanceY", 4, 2, 4, 1, Q("65 mm")),
    Sketcher.Constraint("DistanceX", 9, 1, 9, 2, Q("43.3 mm")),
    Sketcher.Constraint("DistanceX", -1, 1, 9, 2, Q("59 mm")),
    Sketcher.Constraint("DistanceX", 4, 2, -1, 1, Q("70.740305 mm")),
    Sketcher.Constraint("DistanceY", 4, 2, -1, 1, Q("32.196687 mm")),
    Sketcher.Constraint("DistanceY", 8, 2, -1, 1, Q("19.438245 mm")),
])
sketch10.setExpression("Constraints[26]", "Params.sketch10_width")
sketch10.setExpression("Constraints[27]", "Params.sketch10_width2")
sketch10.setExpression("Constraints[28]", "Params.sketch10_height")
sketch10.setExpression("Constraints[29]", "Params.sketch10_height2")
sketch10.setExpression("Constraints[30]", "Params.sketch10_width3")
pad7 = body.newObject("PartDesign::Pad", "Pad006")
pad7.Profile = sketch10
pad7.setExpression("Length", "Params.pad7_length")

sketch11 = body.newObject("Sketcher::SketchObject", "Sketch010")
sketch11.AttachmentSupport = (doc.getObject("XZ_Plane"), [""])
sketch11.MapMode = "FlatFace"
sketch11.AttachmentOffset = App.Placement(App.Vector(0, 0, -200), App.Rotation())
add_polygon(sketch11, [(108, -38.335278), (108, 38.335278), (78, 38.335278), (78, -38.335278)])
add_polygon(sketch11, [(-78, -38.335278), (-78, 38.335278), (-108, 38.335278), (-108, -38.335278)])
sketch11.addConstraint([
    Sketcher.Constraint("Vertical", 0),
    Sketcher.Constraint("Horizontal", 1),
    Sketcher.Constraint("Vertical", 2),
    Sketcher.Constraint("Horizontal", 3),
    Sketcher.Constraint("Vertical", 4),
    Sketcher.Constraint("Horizontal", 5),
    Sketcher.Constraint("Vertical", 6),
    Sketcher.Constraint("Horizontal", 7),
    Sketcher.Constraint("Symmetric", 2, 2, 4, 2, -1, 1),
    Sketcher.Constraint("Symmetric", 0, 2, 6, 2, -1, 1),
    Sketcher.Constraint("Horizontal", 1, 2, 4, 2),
    Sketcher.Constraint("DistanceX", 1, 2, 1, 1, Q("30 mm")),
    Sketcher.Constraint("DistanceX", -1, 1, 0, 2, Q("108 mm")),
    Sketcher.Constraint("DistanceY", 0, 1, 0, 2, Q("76.670556 mm")),
])
sketch11.setExpression("Constraints[19]", "Params.sketch11_width")
pad8 = body.newObject("PartDesign::Pad", "Pad007")
pad8.Profile = sketch11
pad8.setExpression("Length", "Params.pad8_length")

sketch12 = body.newObject("Sketcher::SketchObject", "Sketch011")
sketch12.AttachmentSupport = (doc.getObject("YZ_Plane"), [""])
sketch12.MapMode = "FlatFace"
sketch12.AttachmentOffset = App.Placement(App.Vector(0, 0, -108), App.Rotation())
add_polygon(sketch12, [(245, -38.335278), (195, -38.335278), (195, 38.335278), (245, 38.335278)])
sketch12.addConstraint([
    Sketcher.Constraint("Horizontal", 0),
    Sketcher.Constraint("Vertical", 1),
    Sketcher.Constraint("Horizontal", 2),
    Sketcher.Constraint("Vertical", 3),
    Sketcher.Constraint("DistanceX", 0, 2, 0, 1, Q("50 mm")),
    Sketcher.Constraint("DistanceX", -1, 1, 0, 2, Q("195 mm")),
    Sketcher.Constraint("DistanceY", 1, 1, 1, 2, Q("76.670556 mm")),
    Sketcher.Constraint("DistanceY", 0, 2, -1, 1, Q("38.335278 mm")),
])
sketch12.setExpression("Constraints[8]", "Params.sketch12_width")
pad9 = body.newObject("PartDesign::Pad", "Pad008")
pad9.Profile = sketch12
pad9.setExpression("Length", "Params.pad9_length")
pad9.Reversed = True

sketch13 = body.newObject("Sketcher::SketchObject", "Sketch012")
sketch13.AttachmentSupport = (doc.getObject("YZ_Plane"), [""])
sketch13.MapMode = "FlatFace"
sketch13.AttachmentOffset = App.Placement(App.Vector(0, 0, -113), App.Rotation())
sketch13.addGeometry(Part.Circle(App.Vector(232, 0, 0), App.Vector(0, 0, 1), 3), False)
sketch13.addConstraint([
    Sketcher.Constraint("PointOnObject", 0, 3, -1),
    Sketcher.Constraint("Diameter", 0, Q("6 mm")),
    Sketcher.Constraint("DistanceX", -1, 1, 0, 3, Q("232 mm")),
])
sketch13.setExpression("Constraints[1]", "Params.sketch13_diameter")
pocket4 = body.newObject("PartDesign::Pocket", "Pocket003")
pocket4.Profile = sketch13
pocket4.setExpression("Length", "Params.pocket4_length")
pocket4.Reversed = True

sketch14 = body.newObject("Sketcher::SketchObject", "Sketch013")
sketch14.AttachmentSupport = (doc.getObject("YZ_Plane"), [""])
sketch14.MapMode = "FlatFace"
sketch14.AttachmentOffset = App.Placement(App.Vector(0, 0, 108), App.Rotation())
add_polygon(sketch14, [(245, 38.335278), (195, 38.335278), (195, -38.335278), (245, -38.335278)])
sketch14.addConstraint([
    Sketcher.Constraint("Horizontal", 0),
    Sketcher.Constraint("Vertical", 1),
    Sketcher.Constraint("Horizontal", 2),
    Sketcher.Constraint("Vertical", 3),
    Sketcher.Constraint("DistanceX", 0, 2, 0, 1, Q("50 mm")),
    Sketcher.Constraint("DistanceX", -1, 1, 0, 2, Q("195 mm")),
    Sketcher.Constraint("DistanceY", 1, 2, 1, 1, Q("76.670556 mm")),
    Sketcher.Constraint("DistanceY", -1, 1, 0, 2, Q("38.335278 mm")),
])
sketch14.setExpression("Constraints[8]", "Params.sketch14_width")
pad10 = body.newObject("PartDesign::Pad", "Pad009")
pad10.Profile = sketch14
pad10.setExpression("Length", "Params.pad10_length")

sketch15 = body.newObject("Sketcher::SketchObject", "Sketch014")
sketch15.AttachmentSupport = (doc.getObject("YZ_Plane"), [""])
sketch15.MapMode = "FlatFace"
sketch15.AttachmentOffset = App.Placement(App.Vector(0, 0, 108), App.Rotation())
sketch15.addGeometry(Part.Circle(App.Vector(232, 0, 0), App.Vector(0, 0, 1), 3), False)
sketch15.addConstraint([
    Sketcher.Constraint("PointOnObject", 0, 3, -1),
    Sketcher.Constraint("Diameter", 0, Q("6 mm")),
    Sketcher.Constraint("DistanceX", -1, 1, 0, 3, Q("232 mm")),
])
sketch15.setExpression("Constraints[1]", "Params.sketch15_diameter")
pocket5 = body.newObject("PartDesign::Pocket", "Pocket004")
pocket5.Profile = sketch15
pocket5.setExpression("Length", "Params.pocket5_length")
pocket5.Reversed = True
body4 = doc.addObject("PartDesign::Body", "Body003")

sketch16 = body4.newObject("Sketcher::SketchObject", "Sketch015")
sketch16.AttachmentSupport = (doc.getObject("XZ_Plane003"), [""])
sketch16.MapMode = "FlatFace"
add_polygon(sketch16, [(110, -85), (110, 85), (-110, 85), (-110, -85)])
add_polygon(sketch16, [(-100, 75), (100, 75), (100, -75), (-100, -75)])
sketch16.addConstraint([
    Sketcher.Constraint("Vertical", 0),
    Sketcher.Constraint("Horizontal", 1),
    Sketcher.Constraint("Vertical", 2),
    Sketcher.Constraint("Horizontal", 3),
    Sketcher.Constraint("Horizontal", 4),
    Sketcher.Constraint("Vertical", 5),
    Sketcher.Constraint("Horizontal", 6),
    Sketcher.Constraint("Vertical", 7),
    Sketcher.Constraint("Symmetric", 0, 2, 2, 2, -1, 1),
    Sketcher.Constraint("Symmetric", 4, 2, 6, 2, -1, 1),
    Sketcher.Constraint("DistanceX", 1, 2, 1, 1, Q("220 mm")),
    Sketcher.Constraint("DistanceX", 4, 1, 4, 2, Q("200 mm")),
    Sketcher.Constraint("DistanceY", 0, 1, 0, 2, Q("170 mm")),
    Sketcher.Constraint("DistanceY", 5, 2, 5, 1, Q("150 mm")),
])
sketch16.setExpression("Constraints[18]", "Params.sketch16_width")
sketch16.setExpression("Constraints[19]", "Params.sketch16_width2")
sketch16.setExpression("Constraints[20]", "Params.sketch16_height")
sketch16.setExpression("Constraints[21]", "Params.sketch16_height2")
pad11 = body4.newObject("PartDesign::Pad", "Pad010")
pad11.Profile = sketch16
pad11.setExpression("Length", "Params.pad11_length")
pad11.Midplane = True
doc.recompute()

fillet = body4.newObject("PartDesign::Fillet", "Fillet")
fillet.Base = (pad11, edges_at(pad11, [
    (110, 0, -85),
    (-110, 0, -85),
    (-110, 0, 85),
    (110, 0, 85),
]))
fillet.setExpression("Radius", "Params.fillet_radius")
body5 = doc.addObject("PartDesign::Body", "Body004")

sketch17 = body5.newObject("Sketcher::SketchObject", "Sketch016")
sketch17.AttachmentSupport = (doc.getObject("XZ_Plane004"), [""])
sketch17.MapMode = "FlatFace"
sketch17.AttachmentOffset = App.Placement(App.Vector(0, 0, -140), App.Rotation())
add_polygon(sketch17, [(-110, 85), (-110, -85), (110, -85), (110, 85)])
add_polygon(sketch17, [(100, -75), (-100, -75), (-100, 75), (100, 75)])
sketch17.addConstraint([
    Sketcher.Constraint("Vertical", 0),
    Sketcher.Constraint("Horizontal", 1),
    Sketcher.Constraint("Vertical", 2),
    Sketcher.Constraint("Horizontal", 3),
    Sketcher.Constraint("Horizontal", 4),
    Sketcher.Constraint("Vertical", 5),
    Sketcher.Constraint("Horizontal", 6),
    Sketcher.Constraint("Vertical", 7),
    Sketcher.Constraint("Symmetric", 0, 2, 2, 2, -1, 1),
    Sketcher.Constraint("Symmetric", 4, 2, 6, 2, -1, 1),
    Sketcher.Constraint("DistanceX", 1, 1, 1, 2, Q("220 mm")),
    Sketcher.Constraint("DistanceX", 4, 2, 4, 1, Q("200 mm")),
    Sketcher.Constraint("DistanceY", 0, 2, 0, 1, Q("170 mm")),
    Sketcher.Constraint("DistanceY", 5, 1, 5, 2, Q("150 mm")),
])
sketch17.setExpression("Constraints[18]", "Params.sketch17_width")
sketch17.setExpression("Constraints[19]", "Params.sketch17_width2")
sketch17.setExpression("Constraints[20]", "Params.sketch17_height")
sketch17.setExpression("Constraints[21]", "Params.sketch17_height2")
pad12 = body5.newObject("PartDesign::Pad", "Pad011")
pad12.Profile = sketch17
pad12.setExpression("Length", "Params.pad12_length")
pad12.Midplane = True
doc.recompute()

fillet2 = body5.newObject("PartDesign::Fillet", "Fillet001")
fillet2.Base = (pad12, edges_at(pad12, [
    (110, 140, -85),
    (-110, 140, -85),
    (-110, 140, 85),
    (110, 140, 85),
]))
fillet2.setExpression("Radius", "Params.fillet2_radius")

doc.recompute()
